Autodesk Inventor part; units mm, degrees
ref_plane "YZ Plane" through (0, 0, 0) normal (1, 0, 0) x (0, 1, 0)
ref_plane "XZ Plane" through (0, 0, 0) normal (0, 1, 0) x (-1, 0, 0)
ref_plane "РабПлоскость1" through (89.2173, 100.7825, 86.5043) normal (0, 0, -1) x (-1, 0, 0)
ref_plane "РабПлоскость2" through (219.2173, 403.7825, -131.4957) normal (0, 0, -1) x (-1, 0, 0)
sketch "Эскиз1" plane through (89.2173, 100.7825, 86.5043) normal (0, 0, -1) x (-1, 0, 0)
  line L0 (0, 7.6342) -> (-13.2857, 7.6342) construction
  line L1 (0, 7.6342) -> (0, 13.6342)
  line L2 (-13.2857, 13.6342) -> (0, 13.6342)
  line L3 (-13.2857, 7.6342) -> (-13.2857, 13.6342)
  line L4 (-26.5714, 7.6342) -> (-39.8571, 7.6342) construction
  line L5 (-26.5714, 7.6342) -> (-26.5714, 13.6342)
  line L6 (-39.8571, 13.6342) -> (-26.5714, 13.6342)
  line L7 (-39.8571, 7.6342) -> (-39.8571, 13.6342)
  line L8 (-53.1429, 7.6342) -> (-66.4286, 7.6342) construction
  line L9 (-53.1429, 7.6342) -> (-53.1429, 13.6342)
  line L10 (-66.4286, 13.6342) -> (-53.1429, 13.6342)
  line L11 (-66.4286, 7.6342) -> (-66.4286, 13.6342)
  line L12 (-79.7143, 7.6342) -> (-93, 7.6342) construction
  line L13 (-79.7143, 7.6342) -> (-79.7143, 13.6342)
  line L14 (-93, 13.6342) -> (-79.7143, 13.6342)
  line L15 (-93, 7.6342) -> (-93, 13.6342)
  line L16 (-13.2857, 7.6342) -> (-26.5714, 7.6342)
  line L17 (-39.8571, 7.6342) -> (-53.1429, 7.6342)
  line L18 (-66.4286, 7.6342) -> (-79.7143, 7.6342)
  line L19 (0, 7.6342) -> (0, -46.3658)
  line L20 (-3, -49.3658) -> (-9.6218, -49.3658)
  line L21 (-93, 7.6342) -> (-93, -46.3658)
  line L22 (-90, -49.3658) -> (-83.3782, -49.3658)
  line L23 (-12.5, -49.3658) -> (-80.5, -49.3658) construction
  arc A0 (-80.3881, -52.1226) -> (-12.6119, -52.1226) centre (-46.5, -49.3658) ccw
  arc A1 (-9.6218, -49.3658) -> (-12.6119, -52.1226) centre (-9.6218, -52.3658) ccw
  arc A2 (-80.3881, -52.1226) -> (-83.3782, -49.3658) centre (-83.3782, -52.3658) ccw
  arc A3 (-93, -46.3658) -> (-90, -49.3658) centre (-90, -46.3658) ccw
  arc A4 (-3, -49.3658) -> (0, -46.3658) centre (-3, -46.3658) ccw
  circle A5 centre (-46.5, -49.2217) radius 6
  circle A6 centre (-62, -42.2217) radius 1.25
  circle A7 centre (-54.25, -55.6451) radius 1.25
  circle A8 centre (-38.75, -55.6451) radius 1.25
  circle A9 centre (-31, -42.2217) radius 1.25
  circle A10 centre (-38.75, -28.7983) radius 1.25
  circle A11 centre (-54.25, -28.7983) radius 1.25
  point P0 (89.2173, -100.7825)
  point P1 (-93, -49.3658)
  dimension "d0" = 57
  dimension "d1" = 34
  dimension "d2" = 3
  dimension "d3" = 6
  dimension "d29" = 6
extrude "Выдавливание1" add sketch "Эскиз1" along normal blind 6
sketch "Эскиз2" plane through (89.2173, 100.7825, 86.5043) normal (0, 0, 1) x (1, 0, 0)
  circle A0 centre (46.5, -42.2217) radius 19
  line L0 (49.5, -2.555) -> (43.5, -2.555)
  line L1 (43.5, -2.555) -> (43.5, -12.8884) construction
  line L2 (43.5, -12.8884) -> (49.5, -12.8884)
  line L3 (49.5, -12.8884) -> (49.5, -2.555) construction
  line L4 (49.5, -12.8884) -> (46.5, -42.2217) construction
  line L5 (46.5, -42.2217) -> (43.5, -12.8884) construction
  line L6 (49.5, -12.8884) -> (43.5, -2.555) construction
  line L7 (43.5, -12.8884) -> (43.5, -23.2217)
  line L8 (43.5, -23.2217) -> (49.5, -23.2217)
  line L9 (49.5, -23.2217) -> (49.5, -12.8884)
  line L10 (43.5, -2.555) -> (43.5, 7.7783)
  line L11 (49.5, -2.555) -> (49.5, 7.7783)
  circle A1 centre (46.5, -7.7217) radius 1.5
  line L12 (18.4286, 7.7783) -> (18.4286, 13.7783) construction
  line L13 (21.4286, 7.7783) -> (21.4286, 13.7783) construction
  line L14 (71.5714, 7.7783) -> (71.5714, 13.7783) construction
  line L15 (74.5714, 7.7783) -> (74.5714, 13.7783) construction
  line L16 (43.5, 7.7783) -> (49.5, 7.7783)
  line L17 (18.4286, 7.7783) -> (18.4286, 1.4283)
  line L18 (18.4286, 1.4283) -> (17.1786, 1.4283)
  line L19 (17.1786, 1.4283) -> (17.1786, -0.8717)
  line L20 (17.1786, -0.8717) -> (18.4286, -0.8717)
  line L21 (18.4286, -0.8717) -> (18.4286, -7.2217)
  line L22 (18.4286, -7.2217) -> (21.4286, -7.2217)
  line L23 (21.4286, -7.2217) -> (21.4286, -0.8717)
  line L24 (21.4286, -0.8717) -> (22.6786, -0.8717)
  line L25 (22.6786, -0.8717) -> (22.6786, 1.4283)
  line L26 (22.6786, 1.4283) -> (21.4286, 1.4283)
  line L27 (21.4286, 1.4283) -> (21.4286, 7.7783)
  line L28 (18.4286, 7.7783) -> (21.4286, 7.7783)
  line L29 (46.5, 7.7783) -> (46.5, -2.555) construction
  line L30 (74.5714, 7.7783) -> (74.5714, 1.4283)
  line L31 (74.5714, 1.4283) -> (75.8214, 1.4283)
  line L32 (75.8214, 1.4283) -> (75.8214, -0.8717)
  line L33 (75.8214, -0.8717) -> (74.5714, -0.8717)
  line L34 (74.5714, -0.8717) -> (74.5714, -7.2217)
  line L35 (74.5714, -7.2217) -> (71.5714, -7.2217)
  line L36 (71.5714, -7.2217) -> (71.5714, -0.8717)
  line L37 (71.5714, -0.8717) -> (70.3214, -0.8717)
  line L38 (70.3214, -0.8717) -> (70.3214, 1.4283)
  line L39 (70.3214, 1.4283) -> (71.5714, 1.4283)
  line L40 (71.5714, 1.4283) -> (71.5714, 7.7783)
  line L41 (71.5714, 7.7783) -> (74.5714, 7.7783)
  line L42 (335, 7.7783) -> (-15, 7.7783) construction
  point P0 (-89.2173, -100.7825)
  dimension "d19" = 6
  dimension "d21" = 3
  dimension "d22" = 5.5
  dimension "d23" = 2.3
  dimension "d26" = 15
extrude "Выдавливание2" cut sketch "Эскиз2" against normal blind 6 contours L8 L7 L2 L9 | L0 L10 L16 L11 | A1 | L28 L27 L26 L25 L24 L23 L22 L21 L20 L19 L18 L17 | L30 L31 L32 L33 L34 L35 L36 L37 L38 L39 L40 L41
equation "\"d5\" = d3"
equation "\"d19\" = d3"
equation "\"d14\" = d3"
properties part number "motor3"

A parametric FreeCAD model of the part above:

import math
import FreeCAD as App
import Part
import Sketcher

V = App.Vector
Q = App.Units.Quantity


def add_polygon(sketch, points):
    """Adds a closed chain of lines whose ends are joined by coincident constraints."""
    first, n = sketch.GeometryCount, len(points)
    for a, b in zip(points, points[1:] + points[:1]):
        sketch.addGeometry(Part.LineSegment(App.Vector(*a, 0), App.Vector(*b, 0)), False)
    for i in range(n):
        sketch.addConstraint(Sketcher.Constraint("Coincident", first + i, 2, first + (i + 1) % n, 1))

doc = App.newDocument("Part")
body = doc.addObject("PartDesign::Body", "Body")

# Sketch on XY plane
sketch1 = doc.addObject("Sketcher::SketchObject", "Sketch")
body.addObject(sketch1)
sketch1.AttachmentSupport = (doc.XY_Plane, [""])
sketch1.MapMode = "FlatFace"
sketch1.AttachmentOffset = App.Placement(V(0, 0, 86.5043), App.Rotation())
sketch1.addGeometry([
    Part.LineSegment(V(89.2, 54.4, 0), V(89.2, 114.4, 0)),  # 0
    Part.LineSegment(V(89.2, 114.4, 0), V(102.5, 114.4, 0)),  # 1
    Part.LineSegment(V(102.5, 114.4, 0), V(102.5, 108.4, 0)),  # 2
    Part.LineSegment(V(102.5, 108.4, 0), V(115.8, 108.4, 0)),  # 3
    Part.LineSegment(V(115.8, 108.4, 0), V(115.8, 114.4, 0)),  # 4
    Part.LineSegment(V(115.8, 114.4, 0), V(129.1, 114.4, 0)),  # 5
    Part.LineSegment(V(129.1, 114.4, 0), V(129.1, 108.4, 0)),  # 6
    Part.LineSegment(V(129.1, 108.4, 0), V(142.4, 108.4, 0)),  # 7
    Part.LineSegment(V(142.4, 108.4, 0), V(142.4, 114.4, 0)),  # 8
    Part.LineSegment(V(142.4, 114.4, 0), V(155.6, 114.4, 0)),  # 9
    Part.LineSegment(V(155.6, 114.4, 0), V(155.6, 108.4, 0)),  # 10
    Part.LineSegment(V(155.6, 108.4, 0), V(168.9, 108.4, 0)),  # 11
    Part.LineSegment(V(168.9, 108.4, 0), V(168.9, 114.4, 0)),  # 12
    Part.LineSegment(V(168.9, 114.4, 0), V(182.2, 114.4, 0)),  # 13
    Part.LineSegment(V(182.2, 114.4, 0), V(182.2, 54.4, 0)),  # 14
    Part.ArcOfCircle(Part.Circle(V(179.2, 54.4, 0), V(0, 0, 1), 3), math.radians(-90), math.radians(0)),  # 15
    Part.LineSegment(V(179.2, 51.4, 0), V(172.6, 51.4, 0)),  # 16
    Part.ArcOfCircle(Part.Circle(V(172.6, 48.4, 0), V(0, 0, 1), 3), math.radians(90), math.radians(175)),  # 17
    Part.ArcOfCircle(Part.Circle(V(135.7, 51.4, 0), V(0, 0, 1), 34), math.radians(-175), math.radians(-5)),  # 18
    Part.ArcOfCircle(Part.Circle(V(98.8, 48.4, 0), V(0, 0, 1), 3), math.radians(5), math.radians(90)),  # 19
    Part.LineSegment(V(98.8, 51.4, 0), V(92.2, 51.4, 0)),  # 20
    Part.ArcOfCircle(Part.Circle(V(92.2, 54.4, 0), V(0, 0, 1), 3), math.radians(180), math.radians(270)),  # 21
    Part.Circle(V(143.5, 45.1, 0), V(0, 0, 1), 1.2),  # 22
    Part.Circle(V(151.2, 58.6, 0), V(0, 0, 1), 1.2),  # 23
    Part.Circle(V(128, 45.1, 0), V(0, 0, 1), 1.2),  # 24
    Part.Circle(V(135.7, 51.6, 0), V(0, 0, 1), 6),  # 25
    Part.Circle(V(120.2, 58.6, 0), V(0, 0, 1), 1.2),  # 26
    Part.Circle(V(143.5, 72, 0), V(0, 0, 1), 1.2),  # 27
    Part.Circle(V(128, 72, 0), V(0, 0, 1), 1.2),  # 28
], False)
sketch1.addConstraint([
    Sketcher.Constraint("Coincident", 0, 2, 1, 1),
    Sketcher.Constraint("Coincident", 1, 2, 2, 1),
    Sketcher.Constraint("Coincident", 2, 2, 3, 1),
    Sketcher.Constraint("Coincident", 3, 2, 4, 1),
    Sketcher.Constraint("Coincident", 4, 2, 5, 1),
    Sketcher.Constraint("Coincident", 5, 2, 6, 1),
    Sketcher.Constraint("Coincident", 6, 2, 7, 1),
    Sketcher.Constraint("Coincident", 7, 2, 8, 1),
    Sketcher.Constraint("Coincident", 8, 2, 9, 1),
    Sketcher.Constraint("Coincident", 9, 2, 10, 1),
    Sketcher.Constraint("Coincident", 10, 2, 11, 1),
    Sketcher.Constraint("Coincident", 11, 2, 12, 1),
    Sketcher.Constraint("Coincident", 12, 2, 13, 1),
    Sketcher.Constraint("Coincident", 13, 2, 14, 1),
    Sketcher.Constraint("Tangent", 14, 2, 15, 2),
    Sketcher.Constraint("Tangent", 15, 1, 16, 1),
    Sketcher.Constraint("Tangent", 16, 2, 17, 1),
    Sketcher.Constraint("Tangent", 17, 2, 18, 2),
    Sketcher.Constraint("Tangent", 18, 1, 19, 1),
    Sketcher.Constraint("Tangent", 19, 2, 20, 1),
    Sketcher.Constraint("Tangent", 20, 2, 21, 2),
    Sketcher.Constraint("Tangent", 21, 1, 0, 1),
    Sketcher.Constraint("Vertical", 0),
    Sketcher.Constraint("Horizontal", 1),
    Sketcher.Constraint("Vertical", 2),
    Sketcher.Constraint("Horizontal", 3),
    Sketcher.Constraint("Vertical", 4),
    Sketcher.Constraint("Horizontal", 5),
    Sketcher.Constraint("Vertical", 6),
    Sketcher.Constraint("Horizontal", 7),
    Sketcher.Constraint("Vertical", 8),
    Sketcher.Constraint("Horizontal", 9),
    Sketcher.Constraint("Vertical", 10),
    Sketcher.Constraint("Horizontal", 11),
    Sketcher.Constraint("Vertical", 12),
    Sketcher.Constraint("Horizontal", 13),
    Sketcher.Constraint("Vertical", 14),
    Sketcher.Constraint("Horizontal", 16),
    Sketcher.Constraint("Horizontal", 20),
    Sketcher.Constraint("Equal", 15, 17),
    Sketcher.Constraint("Equal", 17, 19),
    Sketcher.Constraint("Equal", 19, 21),
    Sketcher.Constraint("Equal", 22, 23),
    Sketcher.Constraint("Equal", 23, 24),
    Sketcher.Constraint("Equal", 24, 26),
    Sketcher.Constraint("Equal", 26, 27),
    Sketcher.Constraint("Equal", 27, 28),
    Sketcher.Constraint("Horizontal", 17, 3, 19, 3),
    Sketcher.Constraint("Horizontal", 22, 3, 24, 3),
    Sketcher.Constraint("Horizontal", 23, 3, 26, 3),
    Sketcher.Constraint("Horizontal", 27, 3, 28, 3),
    Sketcher.Constraint("Horizontal", 1, 2, 4, 2),
    Sketcher.Constraint("Horizontal", 3, 2, 6, 2),
    Sketcher.Constraint("Horizontal", 5, 2, 8, 2),
    Sketcher.Constraint("Horizontal", 7, 2, 10, 2),
    Sketcher.Constraint("Horizontal", 9, 2, 12, 2),
    Sketcher.Constraint("Horizontal", 18, 3, 15, 1),
    Sketcher.Constraint("Vertical", 18, 3, 25, 3),
    Sketcher.Constraint("Vertical", 22, 3, 27, 3),
    Sketcher.Constraint("Vertical", 24, 3, 28, 3),
    Sketcher.Constraint("Equal", 1, 3),
    Sketcher.Constraint("Equal", 3, 5),
    Sketcher.Constraint("Equal", 5, 7),
    Sketcher.Constraint("Equal", 7, 9),
    Sketcher.Constraint("Equal", 9, 11),
    Sketcher.Constraint("Equal", 11, 13),
    Sketcher.Constraint("Equal", 16, 20),
    Sketcher.Constraint("Diameter", 25, Q("12 mm")),
    Sketcher.Constraint("Radius", 15, Q("3 mm")),
    Sketcher.Constraint("Radius", 18, Q("34 mm")),
    Sketcher.Constraint("DistanceY", 2, 2, 2, 1, Q("6 mm")),
    Sketcher.Constraint("Diameter", 22, Q("2.5 mm")),
    Sketcher.Constraint("DistanceY", 0, 1, 0, 2, Q("60 mm")),
    Sketcher.Constraint("DistanceX", 21, 3, 15, 3, Q("87 mm")),
    Sketcher.Constraint("DistanceX", 23, 3, 15, 3, Q("28 mm")),
    Sketcher.Constraint("DistanceY", 25, 3, 23, 3, Q("7 mm")),
    Sketcher.Constraint("DistanceX", 0, 2, 26, 3, Q("31 mm")),
    Sketcher.Constraint("DistanceX", 24, 3, 22, 3, Q("15.5 mm")),
    Sketcher.Constraint("DistanceY", -1, 1, 17, 2, Q("48.66 mm")),
    Sketcher.Constraint("DistanceX", 18, 3, 22, 3, Q("7.75 mm")),
    Sketcher.Constraint("DistanceX", -1, 1, 19, 3, Q("98.839 mm")),
    Sketcher.Constraint("DistanceY", 18, 3, 23, 3, Q("7.144 mm")),
    Sketcher.Constraint("DistanceY", -1, 1, 22, 3, Q("45.1374 mm")),
    Sketcher.Constraint("DistanceY", -1, 1, 27, 3, Q("71.9842 mm")),
])
pad1 = doc.addObject("PartDesign::Pad", "Pad")
body.addObject(pad1)
pad1.Profile = sketch1
pad1.Length = 6
pad1.Reversed = True

# Sketch on XY plane
sketch2 = doc.addObject("Sketcher::SketchObject", "Sketch001")
body.addObject(sketch2)
sketch2.AttachmentSupport = (doc.XY_Plane, [""])
sketch2.MapMode = "FlatFace"
sketch2.AttachmentOffset = App.Placement(V(0, 0, 86.5043), App.Rotation())
add_polygon(sketch2, [(132.7, 77.6), (138.7, 77.6), (138.7, 87.9), (132.7, 87.9)])  # lines 0-3
add_polygon(sketch2, [(132.7, 98.2), (138.7, 98.2), (138.7, 108.6), (132.7, 108.6)])  # lines 4-7
sketch2.addGeometry(Part.Circle(V(135.7, 93.1, 0), V(0, 0, 1), 1.5), False)  # 8
add_polygon(sketch2, [(110.6, 108.6), (107.6, 108.6), (107.6, 102.2), (106.4, 102.2), (106.4, 99.9), (107.6, 99.9), (107.6, 93.6), (110.6, 93.6), (110.6, 99.9), (111.9, 99.9), (111.9, 102.2), (110.6, 102.2)])  # lines 9-20
add_polygon(sketch2, [(163.8, 102.2), (163.8, 108.6), (160.8, 108.6), (160.8, 102.2), (159.5, 102.2), (159.5, 99.9), (160.8, 99.9), (160.8, 93.6), (163.8, 93.6), (163.8, 99.9), (165, 99.9), (165, 102.2)])  # lines 21-32
sketch2.addConstraint([
    Sketcher.Constraint("Horizontal", 0),
    Sketcher.Constraint("Vertical", 1),
    Sketcher.Constraint("Horizontal", 2),
    Sketcher.Constraint("Vertical", 3),
    Sketcher.Constraint("Horizontal", 4),
    Sketcher.Constraint("Vertical", 5),
    Sketcher.Constraint("Horizontal", 6),
    Sketcher.Constraint("Vertical", 7),
    Sketcher.Constraint("Horizontal", 9),
    Sketcher.Constraint("Vertical", 10),
    Sketcher.Constraint("Horizontal", 11),
    Sketcher.Constraint("Vertical", 12),
    Sketcher.Constraint("Horizontal", 13),
    Sketcher.Constraint("Vertical", 14),
    Sketcher.Constraint("Horizontal", 15),
    Sketcher.Constraint("Vertical", 16),
    Sketcher.Constraint("Horizontal", 17),
    Sketcher.Constraint("Vertical", 18),
    Sketcher.Constraint("Horizontal", 19),
    Sketcher.Constraint("Vertical", 20),
    Sketcher.Constraint("Vertical", 21),
    Sketcher.Constraint("Horizontal", 22),
    Sketcher.Constraint("Vertical", 23),
    Sketcher.Constraint("Horizontal", 24),
    Sketcher.Constraint("Vertical", 25),
    Sketcher.Constraint("Horizontal", 26),
    Sketcher.Constraint("Vertical", 27),
    Sketcher.Constraint("Horizontal", 28),
    Sketcher.Constraint("Vertical", 29),
    Sketcher.Constraint("Horizontal", 30),
    Sketcher.Constraint("Vertical", 31),
    Sketcher.Constraint("Horizontal", 32),
    Sketcher.Constraint("Horizontal", 6, 2, 9, 2),
    Sketcher.Constraint("Horizontal", 13, 2, 16, 2),
    Sketcher.Constraint("Horizontal", 11, 2, 18, 2),
    Sketcher.Constraint("Horizontal", 20, 2, 21, 2),
    Sketcher.Constraint("Horizontal", 19, 2, 23, 2),
    Sketcher.Constraint("Horizontal", 17, 2, 25, 2),
    Sketcher.Constraint("Horizontal", 15, 2, 27, 2),
    Sketcher.Constraint("Horizontal", 26, 2, 29, 2),
    Sketcher.Constraint("Horizontal", 24, 2, 31, 2),
    Sketcher.Constraint("Vertical", 1, 2, 4, 2),
    Sketcher.Constraint("Vertical", 3, 2, 6, 2),
    Sketcher.Constraint("Vertical", 10, 2, 13, 2),
    Sketcher.Constraint("Vertical", 16, 2, 19, 2),
    Sketcher.Constraint("Vertical", 23, 2, 26, 2),
    Sketcher.Constraint("Vertical", 21, 2, 28, 2),
    Sketcher.Constraint("Equal", 13, 17),
    Sketcher.Constraint("Equal", 15, 22),
    Sketcher.Constraint("Equal", 19, 24),
    Sketcher.Constraint("Equal", 26, 30),
    Sketcher.Constraint("Equal", 3, 5),
    Sketcher.Constraint("Equal", 10, 14),
    Sketcher.Constraint("Diameter", 8, Q("3 mm")),
    Sketcher.Constraint("DistanceX", 0, 1, 0, 2, Q("6 mm")),
    Sketcher.Constraint("DistanceX", 9, 2, 9, 1, Q("3 mm")),
    Sketcher.Constraint("DistanceY", 12, 2, 12, 1, Q("2.3 mm")),
    Sketcher.Constraint("DistanceX", 8, 3, 0, 2, Q("3 mm")),
    Sketcher.Constraint("DistanceY", 14, 2, 9, 2, Q("15 mm")),
    Sketcher.Constraint("DistanceX", 12, 2, 17, 2, Q("5.5 mm")),
    Sketcher.Constraint("DistanceY", 0, 2, 5, 2, Q("31 mm")),
    Sketcher.Constraint("DistanceY", 0, 2, 8, 3, Q("15.5 mm")),
    Sketcher.Constraint("DistanceY", 1, 1, 1, 2, Q("10.3333 mm")),
    Sketcher.Constraint("DistanceY", -1, 1, 1, 2, Q("87.894 mm")),
    Sketcher.Constraint("DistanceX", -1, 1, 9, 2, Q("107.646 mm")),
    Sketcher.Constraint("DistanceX", -1, 1, 8, 3, Q("135.7173 mm")),
    Sketcher.Constraint("DistanceX", -1, 1, 21, 2, Q("163.7887 mm")),
])
pocket1 = doc.addObject("PartDesign::Pocket", "Pocket")
body.addObject(pocket1)
pocket1.Profile = sketch2
pocket1.Length = 6

doc.recompute()
